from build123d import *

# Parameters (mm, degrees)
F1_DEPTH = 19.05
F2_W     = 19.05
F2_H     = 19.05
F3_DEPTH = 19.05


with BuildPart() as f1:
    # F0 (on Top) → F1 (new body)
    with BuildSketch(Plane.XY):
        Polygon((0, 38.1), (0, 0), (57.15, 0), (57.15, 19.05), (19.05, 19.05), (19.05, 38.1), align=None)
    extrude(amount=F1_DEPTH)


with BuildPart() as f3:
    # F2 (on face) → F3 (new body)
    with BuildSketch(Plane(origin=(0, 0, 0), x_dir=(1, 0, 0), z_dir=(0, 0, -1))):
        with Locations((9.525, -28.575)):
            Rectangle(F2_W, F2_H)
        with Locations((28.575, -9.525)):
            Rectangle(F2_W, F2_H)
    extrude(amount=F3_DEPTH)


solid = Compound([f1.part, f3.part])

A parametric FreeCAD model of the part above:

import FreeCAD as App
import Part
import Sketcher
Q = App.Units.Quantity

doc = App.newDocument("Part")
body = doc.addObject("PartDesign::Body", "Body")

# Sketch on XY plane
sketch1 = doc.addObject("Sketcher::SketchObject", "Sketch")
body.addObject(sketch1)
sketch1.AttachmentSupport = (doc.XY_Plane, [""])
sketch1.MapMode = "FlatFace"
sketch1.addGeometry([
    Part.LineSegment(App.Vector(0, 38, 0), App.Vector(0, 0, 0)),  # 0
    Part.LineSegment(App.Vector(0, 0, 0), App.Vector(57, 0, 0)),  # 1
    Part.LineSegment(App.Vector(57, 0, 0), App.Vector(57, 19, 0)),  # 2
    Part.LineSegment(App.Vector(57, 19, 0), App.Vector(19, 19, 0)),  # 3
    Part.LineSegment(App.Vector(19, 19, 0), App.Vector(19, 38, 0)),  # 4
    Part.LineSegment(App.Vector(19, 38, 0), App.Vector(0, 38, 0)),  # 5
], False)
sketch1.addConstraint([
    Sketcher.Constraint("Coincident", 0, 2, 1, 1),
    Sketcher.Constraint("Coincident", 1, 2, 2, 1),
    Sketcher.Constraint("Coincident", 2, 2, 3, 1),
    Sketcher.Constraint("Coincident", 3, 2, 4, 1),
    Sketcher.Constraint("Coincident", 4, 2, 5, 1),
    Sketcher.Constraint("Coincident", 5, 2, 0, 1),
    Sketcher.Constraint("Vertical", 0),
    Sketcher.Constraint("Horizontal", 1),
    Sketcher.Constraint("Vertical", 2),
    Sketcher.Constraint("Horizontal", 3),
    Sketcher.Constraint("Vertical", 4),
    Sketcher.Constraint("Horizontal", 5),
    Sketcher.Constraint("Coincident", 0, 2, -1, 1),
    Sketcher.Constraint("Equal", 3, 0),
    Sketcher.Constraint("Equal", 5, 2),
    Sketcher.Constraint("Equal", 2, 4),
    Sketcher.Constraint("DistanceX", 3, 2, 3, 1, Q("1.5 in")),
])
pad1 = doc.addObject("PartDesign::Pad", "Pad")
body.addObject(pad1)
pad1.Profile = sketch1
pad1.Length = Q("0.75 in")
body2 = doc.addObject("PartDesign::Body", "Body001")
body2.AllowCompound = True

# Sketch on XY plane
sketch2 = doc.addObject("Sketcher::SketchObject", "Sketch001")
body2.addObject(sketch2)
sketch2.AttachmentSupport = (doc.getObject("XY_Plane001"), [""])
sketch2.MapMode = "FlatFace"
sketch2.addGeometry([
    Part.LineSegment(App.Vector(0, 19, 0), App.Vector(0, 38, 0)),  # 0
    Part.LineSegment(App.Vector(0, 38, 0), App.Vector(19, 38, 0)),  # 1
    Part.LineSegment(App.Vector(19, 38, 0), App.Vector(19, 19, 0)),  # 2
    Part.LineSegment(App.Vector(19, 19, 0), App.Vector(0, 19, 0)),  # 3
    Part.LineSegment(App.Vector(19, 0, 0), App.Vector(19, 19, 0)),  # 4
    Part.LineSegment(App.Vector(19, 19, 0), App.Vector(38, 19, 0)),  # 5
    Part.LineSegment(App.Vector(38, 19, 0), App.Vector(38, 0, 0)),  # 6
    Part.LineSegment(App.Vector(38, 0, 0), App.Vector(19, 0, 0)),  # 7
], False)
sketch2.addConstraint([
    Sketcher.Constraint("Coincident", 0, 2, 1, 1),
    Sketcher.Constraint("Coincident", 1, 2, 2, 1),
    Sketcher.Constraint("Coincident", 2, 2, 3, 1),
    Sketcher.Constraint("Coincident", 3, 2, 0, 1),
    Sketcher.Constraint("Coincident", 4, 2, 5, 1),
    Sketcher.Constraint("Coincident", 5, 2, 6, 1),
    Sketcher.Constraint("Coincident", 6, 2, 7, 1),
    Sketcher.Constraint("Coincident", 7, 2, 4, 1),
    Sketcher.Constraint("Vertical", 0),
    Sketcher.Constraint("Horizontal", 1),
    Sketcher.Constraint("Vertical", 2),
    Sketcher.Constraint("Horizontal", 3),
    Sketcher.Constraint("Vertical", 4),
    Sketcher.Constraint("Horizontal", 5),
    Sketcher.Constraint("Vertical", 6),
    Sketcher.Constraint("Horizontal", 7),
    Sketcher.Constraint("Coincident", 4, 2, 2, 2),
    Sketcher.Constraint("PointOnObject", 0, 2, -2),
    Sketcher.Constraint("PointOnObject", 6, 2, -1),
    Sketcher.Constraint("Equal", 3, 5),
    Sketcher.Constraint("Equal", 7, 0),
    Sketcher.Constraint("Equal", 2, 4),
    Sketcher.Constraint("DistanceX", 1, 1, 1, 2, Q("0.75 in")),
])
pad2 = doc.addObject("PartDesign::Pad", "Pad001")
body2.addObject(pad2)
pad2.Profile = sketch2
pad2.Length = Q("0.75 in")
pad2.Reversed = True

doc.recompute()
